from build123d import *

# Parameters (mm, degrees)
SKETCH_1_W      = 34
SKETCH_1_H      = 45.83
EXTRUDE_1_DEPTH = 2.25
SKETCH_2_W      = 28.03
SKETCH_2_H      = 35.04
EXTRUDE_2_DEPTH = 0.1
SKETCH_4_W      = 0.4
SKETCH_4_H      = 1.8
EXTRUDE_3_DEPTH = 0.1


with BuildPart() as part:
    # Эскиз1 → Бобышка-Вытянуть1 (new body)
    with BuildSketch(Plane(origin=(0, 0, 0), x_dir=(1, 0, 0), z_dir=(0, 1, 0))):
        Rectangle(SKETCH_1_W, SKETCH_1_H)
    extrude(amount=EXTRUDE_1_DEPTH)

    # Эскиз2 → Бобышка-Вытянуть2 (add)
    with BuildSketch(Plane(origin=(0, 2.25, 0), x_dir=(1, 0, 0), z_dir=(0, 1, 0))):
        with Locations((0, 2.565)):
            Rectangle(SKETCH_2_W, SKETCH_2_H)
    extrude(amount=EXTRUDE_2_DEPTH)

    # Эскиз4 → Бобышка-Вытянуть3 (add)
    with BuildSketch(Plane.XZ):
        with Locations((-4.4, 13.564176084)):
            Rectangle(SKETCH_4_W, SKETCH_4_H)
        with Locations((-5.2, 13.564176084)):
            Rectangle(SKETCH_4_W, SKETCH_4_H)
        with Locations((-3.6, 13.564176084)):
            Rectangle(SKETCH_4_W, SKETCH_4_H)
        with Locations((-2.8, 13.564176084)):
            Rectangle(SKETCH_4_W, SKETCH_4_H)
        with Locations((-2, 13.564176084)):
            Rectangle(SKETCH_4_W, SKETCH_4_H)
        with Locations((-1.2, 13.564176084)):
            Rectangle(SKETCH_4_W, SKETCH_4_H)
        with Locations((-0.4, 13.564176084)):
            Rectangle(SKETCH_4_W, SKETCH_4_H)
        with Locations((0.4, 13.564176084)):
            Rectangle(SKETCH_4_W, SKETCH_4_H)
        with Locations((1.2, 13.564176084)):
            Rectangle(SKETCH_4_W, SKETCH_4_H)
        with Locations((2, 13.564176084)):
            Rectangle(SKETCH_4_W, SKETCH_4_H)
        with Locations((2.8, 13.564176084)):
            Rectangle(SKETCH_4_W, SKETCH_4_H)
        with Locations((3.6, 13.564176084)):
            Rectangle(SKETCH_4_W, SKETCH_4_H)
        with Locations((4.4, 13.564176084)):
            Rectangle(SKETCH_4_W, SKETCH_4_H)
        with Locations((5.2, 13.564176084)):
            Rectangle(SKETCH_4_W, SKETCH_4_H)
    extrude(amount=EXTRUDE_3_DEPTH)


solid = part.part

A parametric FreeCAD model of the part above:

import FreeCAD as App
import Part
import Sketcher
from FreeCAD import Vector


def add_polygon(sketch, points):
    """Adds a closed chain of lines whose ends are joined by coincident constraints."""
    first, n = sketch.GeometryCount, len(points)
    for a, b in zip(points, points[1:] + points[:1]):
        sketch.addGeometry(Part.LineSegment(App.Vector(*a, 0), App.Vector(*b, 0)), False)
    for i in range(n):
        sketch.addConstraint(Sketcher.Constraint("Coincident", first + i, 2, first + (i + 1) % n, 1))

doc = App.newDocument("Part")
body = doc.addObject("PartDesign::Body", "Body")

# Sketch on XZ plane
sketch1 = doc.addObject("Sketcher::SketchObject", "Sketch")
body.addObject(sketch1)
sketch1.AttachmentSupport = (doc.XZ_Plane, [""])
sketch1.MapMode = "FlatFace"
add_polygon(sketch1, [(-17, -22.915), (-17, 22.915), (17, 22.915), (17, -22.915)])  # lines 0-3
sketch1.addConstraint([
    Sketcher.Constraint("Vertical", 0),
    Sketcher.Constraint("Horizontal", 1),
    Sketcher.Constraint("Vertical", 2),
    Sketcher.Constraint("Horizontal", 3),
    Sketcher.Constraint("Symmetric", 0, 2, 2, 2, -1, 1),
    Sketcher.Constraint("DistanceX", 1, 1, 1, 2, 34.0),
    Sketcher.Constraint("DistanceY", 0, 1, 0, 2, 45.83),
])
pad1 = doc.addObject("PartDesign::Pad", "Pad")
body.addObject(pad1)
pad1.Profile = sketch1
pad1.Length = 2.25
pad1.Reversed = True

# Sketch on XZ plane
sketch2 = doc.addObject("Sketcher::SketchObject", "Sketch001")
body.addObject(sketch2)
sketch2.AttachmentSupport = (doc.XZ_Plane, [""])
sketch2.MapMode = "FlatFace"
sketch2.AttachmentOffset = App.Placement(Vector(0, 0, -2.25), App.Rotation())
add_polygon(sketch2, [(-14.015, -20.085), (-14.015, 14.955), (14.015, 14.955), (14.015, -20.085)])  # lines 0-3
sketch2.addConstraint([
    Sketcher.Constraint("Vertical", 0),
    Sketcher.Constraint("Horizontal", 1),
    Sketcher.Constraint("Vertical", 2),
    Sketcher.Constraint("Horizontal", 3),
    Sketcher.Constraint("DistanceX", 1, 1, 1, 2, 28.03),
    Sketcher.Constraint("DistanceY", 0, 1, 0, 2, 35.04),
    Sketcher.Constraint("DistanceX", 0, 2, -1, 1, 14.015),
    Sketcher.Constraint("DistanceY", -1, 1, 0, 2, 14.955),
])
pad2 = doc.addObject("PartDesign::Pad", "Pad001")
body.addObject(pad2)
pad2.Profile = sketch2
pad2.Length = 0.1
pad2.Reversed = True

# Sketch on XZ plane
sketch3 = doc.addObject("Sketcher::SketchObject", "Sketch002")
body.addObject(sketch3)
sketch3.AttachmentSupport = (doc.XZ_Plane, [""])
sketch3.MapMode = "FlatFace"
add_polygon(sketch3, [(-4.6, 14.464176), (-4.6, 12.664176), (-4.2, 12.664176), (-4.2, 14.464176)])  # lines 0-3
add_polygon(sketch3, [(-5.4, 14.464176), (-5.4, 12.664176), (-5, 12.664176), (-5, 14.464176)])  # lines 4-7
add_polygon(sketch3, [(-3.8, 14.464176), (-3.8, 12.664176), (-3.4, 12.664176), (-3.4, 14.464176)])  # lines 8-11
add_polygon(sketch3, [(-3, 14.464176), (-3, 12.664176), (-2.6, 12.664176), (-2.6, 14.464176)])  # lines 12-15
add_polygon(sketch3, [(-2.2, 14.464176), (-2.2, 12.664176), (-1.8, 12.664176), (-1.8, 14.464176)])  # lines 16-19
add_polygon(sketch3, [(-1.4, 14.464176), (-1.4, 12.664176), (-1, 12.664176), (-1, 14.464176)])  # lines 20-23
add_polygon(sketch3, [(-0.6, 14.464176), (-0.6, 12.664176), (-0.2, 12.664176), (-0.2, 14.464176)])  # lines 24-27
add_polygon(sketch3, [(0.2, 14.464176), (0.2, 12.664176), (0.6, 12.664176), (0.6, 14.464176)])  # lines 28-31
add_polygon(sketch3, [(1, 14.464176), (1, 12.664176), (1.4, 12.664176), (1.4, 14.464176)])  # lines 32-35
add_polygon(sketch3, [(1.8, 14.464176), (1.8, 12.664176), (2.2, 12.664176), (2.2, 14.464176)])  # lines 36-39
add_polygon(sketch3, [(2.6, 14.464176), (2.6, 12.664176), (3, 12.664176), (3, 14.464176)])  # lines 40-43
add_polygon(sketch3, [(3.4, 14.464176), (3.4, 12.664176), (3.8, 12.664176), (3.8, 14.464176)])  # lines 44-47
add_polygon(sketch3, [(4.2, 14.464176), (4.2, 12.664176), (4.6, 12.664176), (4.6, 14.464176)])  # lines 48-51
add_polygon(sketch3, [(5, 14.464176), (5, 12.664176), (5.4, 12.664176), (5.4, 14.464176)])  # lines 52-55
sketch3.addConstraint([
    Sketcher.Constraint("Vertical", 0),
    Sketcher.Constraint("Horizontal", 1),
    Sketcher.Constraint("Vertical", 2),
    Sketcher.Constraint("Horizontal", 3),
    Sketcher.Constraint("Vertical", 4),
    Sketcher.Constraint("Horizontal", 5),
    Sketcher.Constraint("Vertical", 6),
    Sketcher.Constraint("Horizontal", 7),
    Sketcher.Constraint("Vertical", 8),
    Sketcher.Constraint("Horizontal", 9),
    Sketcher.Constraint("Vertical", 10),
    Sketcher.Constraint("Horizontal", 11),
    Sketcher.Constraint("Vertical", 12),
    Sketcher.Constraint("Horizontal", 13),
    Sketcher.Constraint("Vertical", 14),
    Sketcher.Constraint("Horizontal", 15),
    Sketcher.Constraint("Vertical", 16),
    Sketcher.Constraint("Horizontal", 17),
    Sketcher.Constraint("Vertical", 18),
    Sketcher.Constraint("Horizontal", 19),
    Sketcher.Constraint("Vertical", 20),
    Sketcher.Constraint("Horizontal", 21),
    Sketcher.Constraint("Vertical", 22),
    Sketcher.Constraint("Horizontal", 23),
    Sketcher.Constraint("Vertical", 24),
    Sketcher.Constraint("Horizontal", 25),
    Sketcher.Constraint("Vertical", 26),
    Sketcher.Constraint("Horizontal", 27),
    Sketcher.Constraint("Vertical", 28),
    Sketcher.Constraint("Horizontal", 29),
    Sketcher.Constraint("Vertical", 30),
    Sketcher.Constraint("Horizontal", 31),
    Sketcher.Constraint("Vertical", 32),
    Sketcher.Constraint("Horizontal", 33),
    Sketcher.Constraint("Vertical", 34),
    Sketcher.Constraint("Horizontal", 35),
    Sketcher.Constraint("Vertical", 36),
    Sketcher.Constraint("Horizontal", 37),
    Sketcher.Constraint("Vertical", 38),
    Sketcher.Constraint("Horizontal", 39),
    Sketcher.Constraint("Vertical", 40),
    Sketcher.Constraint("Horizontal", 41),
    Sketcher.Constraint("Vertical", 42),
    Sketcher.Constraint("Horizontal", 43),
    Sketcher.Constraint("Vertical", 44),
    Sketcher.Constraint("Horizontal", 45),
    Sketcher.Constraint("Vertical", 46),
    Sketcher.Constraint("Horizontal", 47),
    Sketcher.Constraint("Vertical", 48),
    Sketcher.Constraint("Horizontal", 49),
    Sketcher.Constraint("Vertical", 50),
    Sketcher.Constraint("Horizontal", 51),
    Sketcher.Constraint("Vertical", 52),
    Sketcher.Constraint("Horizontal", 53),
    Sketcher.Constraint("Vertical", 54),
    Sketcher.Constraint("Horizontal", 55),
    Sketcher.Constraint("Symmetric", 25, 2, 28, 2, -2),
    Sketcher.Constraint("Symmetric", 27, 2, 30, 2, -2),
    Sketcher.Constraint("Symmetric", 21, 2, 32, 2, -2),
    Sketcher.Constraint("Symmetric", 23, 2, 34, 2, -2),
    Sketcher.Constraint("Symmetric", 17, 2, 36, 2, -2),
    Sketcher.Constraint("Symmetric", 19, 2, 38, 2, -2),
    Sketcher.Constraint("Symmetric", 13, 2, 40, 2, -2),
    Sketcher.Constraint("Symmetric", 15, 2, 42, 2, -2),
    Sketcher.Constraint("Symmetric", 9, 2, 44, 2, -2),
    Sketcher.Constraint("Symmetric", 11, 2, 46, 2, -2),
    Sketcher.Constraint("Symmetric", 1, 2, 48, 2, -2),
    Sketcher.Constraint("Symmetric", 3, 2, 50, 2, -2),
    Sketcher.Constraint("Symmetric", 5, 2, 52, 2, -2),
    Sketcher.Constraint("Symmetric", 7, 2, 54, 2, -2),
    Sketcher.Constraint("Horizontal", 1, 2, 4, 2),
    Sketcher.Constraint("Horizontal", 3, 2, 6, 2),
    Sketcher.Constraint("Horizontal", 5, 2, 8, 2),
    Sketcher.Constraint("Horizontal", 7, 2, 10, 2),
    Sketcher.Constraint("Horizontal", 9, 2, 12, 2),
    Sketcher.Constraint("Horizontal", 11, 2, 14, 2),
    Sketcher.Constraint("Horizontal", 13, 2, 16, 2),
    Sketcher.Constraint("Horizontal", 15, 2, 18, 2),
    Sketcher.Constraint("Horizontal", 17, 2, 20, 2),
    Sketcher.Constraint("Horizontal", 19, 2, 22, 2),
    Sketcher.Constraint("Horizontal", 21, 2, 24, 2),
    Sketcher.Constraint("Horizontal", 23, 2, 26, 2),
    Sketcher.Constraint("Equal", 3, 5),
    Sketcher.Constraint("Equal", 7, 9),
    Sketcher.Constraint("Equal", 11, 13),
    Sketcher.Constraint("Equal", 15, 17),
    Sketcher.Constraint("Equal", 19, 21),
    Sketcher.Constraint("Equal", 23, 25),
    Sketcher.Constraint("DistanceX", 1, 1, 1, 2, 0.4),
    Sketcher.Constraint("DistanceY", 0, 2, 0, 1, 1.8),
    Sketcher.Constraint("DistanceX", 5, 2, -1, 1, 5.0),
    Sketcher.Constraint("DistanceX", 12, 2, -1, 1, 3.0),
    Sketcher.Constraint("DistanceX", 21, 2, -1, 1, 1.0),
    Sketcher.Constraint("DistanceX", 0, 2, -1, 1, 4.6),
    Sketcher.Constraint("DistanceX", 8, 2, -1, 1, 3.8),
    Sketcher.Constraint("DistanceX", 16, 2, -1, 1, 2.2),
    Sketcher.Constraint("DistanceX", 24, 2, -1, 1, 0.6),
    Sketcher.Constraint("DistanceY", -1, 1, 0, 2, 12.664176),
])
pad3 = doc.addObject("PartDesign::Pad", "Pad002")
body.addObject(pad3)
pad3.Profile = sketch3
pad3.Length = 0.1

doc.recompute()
